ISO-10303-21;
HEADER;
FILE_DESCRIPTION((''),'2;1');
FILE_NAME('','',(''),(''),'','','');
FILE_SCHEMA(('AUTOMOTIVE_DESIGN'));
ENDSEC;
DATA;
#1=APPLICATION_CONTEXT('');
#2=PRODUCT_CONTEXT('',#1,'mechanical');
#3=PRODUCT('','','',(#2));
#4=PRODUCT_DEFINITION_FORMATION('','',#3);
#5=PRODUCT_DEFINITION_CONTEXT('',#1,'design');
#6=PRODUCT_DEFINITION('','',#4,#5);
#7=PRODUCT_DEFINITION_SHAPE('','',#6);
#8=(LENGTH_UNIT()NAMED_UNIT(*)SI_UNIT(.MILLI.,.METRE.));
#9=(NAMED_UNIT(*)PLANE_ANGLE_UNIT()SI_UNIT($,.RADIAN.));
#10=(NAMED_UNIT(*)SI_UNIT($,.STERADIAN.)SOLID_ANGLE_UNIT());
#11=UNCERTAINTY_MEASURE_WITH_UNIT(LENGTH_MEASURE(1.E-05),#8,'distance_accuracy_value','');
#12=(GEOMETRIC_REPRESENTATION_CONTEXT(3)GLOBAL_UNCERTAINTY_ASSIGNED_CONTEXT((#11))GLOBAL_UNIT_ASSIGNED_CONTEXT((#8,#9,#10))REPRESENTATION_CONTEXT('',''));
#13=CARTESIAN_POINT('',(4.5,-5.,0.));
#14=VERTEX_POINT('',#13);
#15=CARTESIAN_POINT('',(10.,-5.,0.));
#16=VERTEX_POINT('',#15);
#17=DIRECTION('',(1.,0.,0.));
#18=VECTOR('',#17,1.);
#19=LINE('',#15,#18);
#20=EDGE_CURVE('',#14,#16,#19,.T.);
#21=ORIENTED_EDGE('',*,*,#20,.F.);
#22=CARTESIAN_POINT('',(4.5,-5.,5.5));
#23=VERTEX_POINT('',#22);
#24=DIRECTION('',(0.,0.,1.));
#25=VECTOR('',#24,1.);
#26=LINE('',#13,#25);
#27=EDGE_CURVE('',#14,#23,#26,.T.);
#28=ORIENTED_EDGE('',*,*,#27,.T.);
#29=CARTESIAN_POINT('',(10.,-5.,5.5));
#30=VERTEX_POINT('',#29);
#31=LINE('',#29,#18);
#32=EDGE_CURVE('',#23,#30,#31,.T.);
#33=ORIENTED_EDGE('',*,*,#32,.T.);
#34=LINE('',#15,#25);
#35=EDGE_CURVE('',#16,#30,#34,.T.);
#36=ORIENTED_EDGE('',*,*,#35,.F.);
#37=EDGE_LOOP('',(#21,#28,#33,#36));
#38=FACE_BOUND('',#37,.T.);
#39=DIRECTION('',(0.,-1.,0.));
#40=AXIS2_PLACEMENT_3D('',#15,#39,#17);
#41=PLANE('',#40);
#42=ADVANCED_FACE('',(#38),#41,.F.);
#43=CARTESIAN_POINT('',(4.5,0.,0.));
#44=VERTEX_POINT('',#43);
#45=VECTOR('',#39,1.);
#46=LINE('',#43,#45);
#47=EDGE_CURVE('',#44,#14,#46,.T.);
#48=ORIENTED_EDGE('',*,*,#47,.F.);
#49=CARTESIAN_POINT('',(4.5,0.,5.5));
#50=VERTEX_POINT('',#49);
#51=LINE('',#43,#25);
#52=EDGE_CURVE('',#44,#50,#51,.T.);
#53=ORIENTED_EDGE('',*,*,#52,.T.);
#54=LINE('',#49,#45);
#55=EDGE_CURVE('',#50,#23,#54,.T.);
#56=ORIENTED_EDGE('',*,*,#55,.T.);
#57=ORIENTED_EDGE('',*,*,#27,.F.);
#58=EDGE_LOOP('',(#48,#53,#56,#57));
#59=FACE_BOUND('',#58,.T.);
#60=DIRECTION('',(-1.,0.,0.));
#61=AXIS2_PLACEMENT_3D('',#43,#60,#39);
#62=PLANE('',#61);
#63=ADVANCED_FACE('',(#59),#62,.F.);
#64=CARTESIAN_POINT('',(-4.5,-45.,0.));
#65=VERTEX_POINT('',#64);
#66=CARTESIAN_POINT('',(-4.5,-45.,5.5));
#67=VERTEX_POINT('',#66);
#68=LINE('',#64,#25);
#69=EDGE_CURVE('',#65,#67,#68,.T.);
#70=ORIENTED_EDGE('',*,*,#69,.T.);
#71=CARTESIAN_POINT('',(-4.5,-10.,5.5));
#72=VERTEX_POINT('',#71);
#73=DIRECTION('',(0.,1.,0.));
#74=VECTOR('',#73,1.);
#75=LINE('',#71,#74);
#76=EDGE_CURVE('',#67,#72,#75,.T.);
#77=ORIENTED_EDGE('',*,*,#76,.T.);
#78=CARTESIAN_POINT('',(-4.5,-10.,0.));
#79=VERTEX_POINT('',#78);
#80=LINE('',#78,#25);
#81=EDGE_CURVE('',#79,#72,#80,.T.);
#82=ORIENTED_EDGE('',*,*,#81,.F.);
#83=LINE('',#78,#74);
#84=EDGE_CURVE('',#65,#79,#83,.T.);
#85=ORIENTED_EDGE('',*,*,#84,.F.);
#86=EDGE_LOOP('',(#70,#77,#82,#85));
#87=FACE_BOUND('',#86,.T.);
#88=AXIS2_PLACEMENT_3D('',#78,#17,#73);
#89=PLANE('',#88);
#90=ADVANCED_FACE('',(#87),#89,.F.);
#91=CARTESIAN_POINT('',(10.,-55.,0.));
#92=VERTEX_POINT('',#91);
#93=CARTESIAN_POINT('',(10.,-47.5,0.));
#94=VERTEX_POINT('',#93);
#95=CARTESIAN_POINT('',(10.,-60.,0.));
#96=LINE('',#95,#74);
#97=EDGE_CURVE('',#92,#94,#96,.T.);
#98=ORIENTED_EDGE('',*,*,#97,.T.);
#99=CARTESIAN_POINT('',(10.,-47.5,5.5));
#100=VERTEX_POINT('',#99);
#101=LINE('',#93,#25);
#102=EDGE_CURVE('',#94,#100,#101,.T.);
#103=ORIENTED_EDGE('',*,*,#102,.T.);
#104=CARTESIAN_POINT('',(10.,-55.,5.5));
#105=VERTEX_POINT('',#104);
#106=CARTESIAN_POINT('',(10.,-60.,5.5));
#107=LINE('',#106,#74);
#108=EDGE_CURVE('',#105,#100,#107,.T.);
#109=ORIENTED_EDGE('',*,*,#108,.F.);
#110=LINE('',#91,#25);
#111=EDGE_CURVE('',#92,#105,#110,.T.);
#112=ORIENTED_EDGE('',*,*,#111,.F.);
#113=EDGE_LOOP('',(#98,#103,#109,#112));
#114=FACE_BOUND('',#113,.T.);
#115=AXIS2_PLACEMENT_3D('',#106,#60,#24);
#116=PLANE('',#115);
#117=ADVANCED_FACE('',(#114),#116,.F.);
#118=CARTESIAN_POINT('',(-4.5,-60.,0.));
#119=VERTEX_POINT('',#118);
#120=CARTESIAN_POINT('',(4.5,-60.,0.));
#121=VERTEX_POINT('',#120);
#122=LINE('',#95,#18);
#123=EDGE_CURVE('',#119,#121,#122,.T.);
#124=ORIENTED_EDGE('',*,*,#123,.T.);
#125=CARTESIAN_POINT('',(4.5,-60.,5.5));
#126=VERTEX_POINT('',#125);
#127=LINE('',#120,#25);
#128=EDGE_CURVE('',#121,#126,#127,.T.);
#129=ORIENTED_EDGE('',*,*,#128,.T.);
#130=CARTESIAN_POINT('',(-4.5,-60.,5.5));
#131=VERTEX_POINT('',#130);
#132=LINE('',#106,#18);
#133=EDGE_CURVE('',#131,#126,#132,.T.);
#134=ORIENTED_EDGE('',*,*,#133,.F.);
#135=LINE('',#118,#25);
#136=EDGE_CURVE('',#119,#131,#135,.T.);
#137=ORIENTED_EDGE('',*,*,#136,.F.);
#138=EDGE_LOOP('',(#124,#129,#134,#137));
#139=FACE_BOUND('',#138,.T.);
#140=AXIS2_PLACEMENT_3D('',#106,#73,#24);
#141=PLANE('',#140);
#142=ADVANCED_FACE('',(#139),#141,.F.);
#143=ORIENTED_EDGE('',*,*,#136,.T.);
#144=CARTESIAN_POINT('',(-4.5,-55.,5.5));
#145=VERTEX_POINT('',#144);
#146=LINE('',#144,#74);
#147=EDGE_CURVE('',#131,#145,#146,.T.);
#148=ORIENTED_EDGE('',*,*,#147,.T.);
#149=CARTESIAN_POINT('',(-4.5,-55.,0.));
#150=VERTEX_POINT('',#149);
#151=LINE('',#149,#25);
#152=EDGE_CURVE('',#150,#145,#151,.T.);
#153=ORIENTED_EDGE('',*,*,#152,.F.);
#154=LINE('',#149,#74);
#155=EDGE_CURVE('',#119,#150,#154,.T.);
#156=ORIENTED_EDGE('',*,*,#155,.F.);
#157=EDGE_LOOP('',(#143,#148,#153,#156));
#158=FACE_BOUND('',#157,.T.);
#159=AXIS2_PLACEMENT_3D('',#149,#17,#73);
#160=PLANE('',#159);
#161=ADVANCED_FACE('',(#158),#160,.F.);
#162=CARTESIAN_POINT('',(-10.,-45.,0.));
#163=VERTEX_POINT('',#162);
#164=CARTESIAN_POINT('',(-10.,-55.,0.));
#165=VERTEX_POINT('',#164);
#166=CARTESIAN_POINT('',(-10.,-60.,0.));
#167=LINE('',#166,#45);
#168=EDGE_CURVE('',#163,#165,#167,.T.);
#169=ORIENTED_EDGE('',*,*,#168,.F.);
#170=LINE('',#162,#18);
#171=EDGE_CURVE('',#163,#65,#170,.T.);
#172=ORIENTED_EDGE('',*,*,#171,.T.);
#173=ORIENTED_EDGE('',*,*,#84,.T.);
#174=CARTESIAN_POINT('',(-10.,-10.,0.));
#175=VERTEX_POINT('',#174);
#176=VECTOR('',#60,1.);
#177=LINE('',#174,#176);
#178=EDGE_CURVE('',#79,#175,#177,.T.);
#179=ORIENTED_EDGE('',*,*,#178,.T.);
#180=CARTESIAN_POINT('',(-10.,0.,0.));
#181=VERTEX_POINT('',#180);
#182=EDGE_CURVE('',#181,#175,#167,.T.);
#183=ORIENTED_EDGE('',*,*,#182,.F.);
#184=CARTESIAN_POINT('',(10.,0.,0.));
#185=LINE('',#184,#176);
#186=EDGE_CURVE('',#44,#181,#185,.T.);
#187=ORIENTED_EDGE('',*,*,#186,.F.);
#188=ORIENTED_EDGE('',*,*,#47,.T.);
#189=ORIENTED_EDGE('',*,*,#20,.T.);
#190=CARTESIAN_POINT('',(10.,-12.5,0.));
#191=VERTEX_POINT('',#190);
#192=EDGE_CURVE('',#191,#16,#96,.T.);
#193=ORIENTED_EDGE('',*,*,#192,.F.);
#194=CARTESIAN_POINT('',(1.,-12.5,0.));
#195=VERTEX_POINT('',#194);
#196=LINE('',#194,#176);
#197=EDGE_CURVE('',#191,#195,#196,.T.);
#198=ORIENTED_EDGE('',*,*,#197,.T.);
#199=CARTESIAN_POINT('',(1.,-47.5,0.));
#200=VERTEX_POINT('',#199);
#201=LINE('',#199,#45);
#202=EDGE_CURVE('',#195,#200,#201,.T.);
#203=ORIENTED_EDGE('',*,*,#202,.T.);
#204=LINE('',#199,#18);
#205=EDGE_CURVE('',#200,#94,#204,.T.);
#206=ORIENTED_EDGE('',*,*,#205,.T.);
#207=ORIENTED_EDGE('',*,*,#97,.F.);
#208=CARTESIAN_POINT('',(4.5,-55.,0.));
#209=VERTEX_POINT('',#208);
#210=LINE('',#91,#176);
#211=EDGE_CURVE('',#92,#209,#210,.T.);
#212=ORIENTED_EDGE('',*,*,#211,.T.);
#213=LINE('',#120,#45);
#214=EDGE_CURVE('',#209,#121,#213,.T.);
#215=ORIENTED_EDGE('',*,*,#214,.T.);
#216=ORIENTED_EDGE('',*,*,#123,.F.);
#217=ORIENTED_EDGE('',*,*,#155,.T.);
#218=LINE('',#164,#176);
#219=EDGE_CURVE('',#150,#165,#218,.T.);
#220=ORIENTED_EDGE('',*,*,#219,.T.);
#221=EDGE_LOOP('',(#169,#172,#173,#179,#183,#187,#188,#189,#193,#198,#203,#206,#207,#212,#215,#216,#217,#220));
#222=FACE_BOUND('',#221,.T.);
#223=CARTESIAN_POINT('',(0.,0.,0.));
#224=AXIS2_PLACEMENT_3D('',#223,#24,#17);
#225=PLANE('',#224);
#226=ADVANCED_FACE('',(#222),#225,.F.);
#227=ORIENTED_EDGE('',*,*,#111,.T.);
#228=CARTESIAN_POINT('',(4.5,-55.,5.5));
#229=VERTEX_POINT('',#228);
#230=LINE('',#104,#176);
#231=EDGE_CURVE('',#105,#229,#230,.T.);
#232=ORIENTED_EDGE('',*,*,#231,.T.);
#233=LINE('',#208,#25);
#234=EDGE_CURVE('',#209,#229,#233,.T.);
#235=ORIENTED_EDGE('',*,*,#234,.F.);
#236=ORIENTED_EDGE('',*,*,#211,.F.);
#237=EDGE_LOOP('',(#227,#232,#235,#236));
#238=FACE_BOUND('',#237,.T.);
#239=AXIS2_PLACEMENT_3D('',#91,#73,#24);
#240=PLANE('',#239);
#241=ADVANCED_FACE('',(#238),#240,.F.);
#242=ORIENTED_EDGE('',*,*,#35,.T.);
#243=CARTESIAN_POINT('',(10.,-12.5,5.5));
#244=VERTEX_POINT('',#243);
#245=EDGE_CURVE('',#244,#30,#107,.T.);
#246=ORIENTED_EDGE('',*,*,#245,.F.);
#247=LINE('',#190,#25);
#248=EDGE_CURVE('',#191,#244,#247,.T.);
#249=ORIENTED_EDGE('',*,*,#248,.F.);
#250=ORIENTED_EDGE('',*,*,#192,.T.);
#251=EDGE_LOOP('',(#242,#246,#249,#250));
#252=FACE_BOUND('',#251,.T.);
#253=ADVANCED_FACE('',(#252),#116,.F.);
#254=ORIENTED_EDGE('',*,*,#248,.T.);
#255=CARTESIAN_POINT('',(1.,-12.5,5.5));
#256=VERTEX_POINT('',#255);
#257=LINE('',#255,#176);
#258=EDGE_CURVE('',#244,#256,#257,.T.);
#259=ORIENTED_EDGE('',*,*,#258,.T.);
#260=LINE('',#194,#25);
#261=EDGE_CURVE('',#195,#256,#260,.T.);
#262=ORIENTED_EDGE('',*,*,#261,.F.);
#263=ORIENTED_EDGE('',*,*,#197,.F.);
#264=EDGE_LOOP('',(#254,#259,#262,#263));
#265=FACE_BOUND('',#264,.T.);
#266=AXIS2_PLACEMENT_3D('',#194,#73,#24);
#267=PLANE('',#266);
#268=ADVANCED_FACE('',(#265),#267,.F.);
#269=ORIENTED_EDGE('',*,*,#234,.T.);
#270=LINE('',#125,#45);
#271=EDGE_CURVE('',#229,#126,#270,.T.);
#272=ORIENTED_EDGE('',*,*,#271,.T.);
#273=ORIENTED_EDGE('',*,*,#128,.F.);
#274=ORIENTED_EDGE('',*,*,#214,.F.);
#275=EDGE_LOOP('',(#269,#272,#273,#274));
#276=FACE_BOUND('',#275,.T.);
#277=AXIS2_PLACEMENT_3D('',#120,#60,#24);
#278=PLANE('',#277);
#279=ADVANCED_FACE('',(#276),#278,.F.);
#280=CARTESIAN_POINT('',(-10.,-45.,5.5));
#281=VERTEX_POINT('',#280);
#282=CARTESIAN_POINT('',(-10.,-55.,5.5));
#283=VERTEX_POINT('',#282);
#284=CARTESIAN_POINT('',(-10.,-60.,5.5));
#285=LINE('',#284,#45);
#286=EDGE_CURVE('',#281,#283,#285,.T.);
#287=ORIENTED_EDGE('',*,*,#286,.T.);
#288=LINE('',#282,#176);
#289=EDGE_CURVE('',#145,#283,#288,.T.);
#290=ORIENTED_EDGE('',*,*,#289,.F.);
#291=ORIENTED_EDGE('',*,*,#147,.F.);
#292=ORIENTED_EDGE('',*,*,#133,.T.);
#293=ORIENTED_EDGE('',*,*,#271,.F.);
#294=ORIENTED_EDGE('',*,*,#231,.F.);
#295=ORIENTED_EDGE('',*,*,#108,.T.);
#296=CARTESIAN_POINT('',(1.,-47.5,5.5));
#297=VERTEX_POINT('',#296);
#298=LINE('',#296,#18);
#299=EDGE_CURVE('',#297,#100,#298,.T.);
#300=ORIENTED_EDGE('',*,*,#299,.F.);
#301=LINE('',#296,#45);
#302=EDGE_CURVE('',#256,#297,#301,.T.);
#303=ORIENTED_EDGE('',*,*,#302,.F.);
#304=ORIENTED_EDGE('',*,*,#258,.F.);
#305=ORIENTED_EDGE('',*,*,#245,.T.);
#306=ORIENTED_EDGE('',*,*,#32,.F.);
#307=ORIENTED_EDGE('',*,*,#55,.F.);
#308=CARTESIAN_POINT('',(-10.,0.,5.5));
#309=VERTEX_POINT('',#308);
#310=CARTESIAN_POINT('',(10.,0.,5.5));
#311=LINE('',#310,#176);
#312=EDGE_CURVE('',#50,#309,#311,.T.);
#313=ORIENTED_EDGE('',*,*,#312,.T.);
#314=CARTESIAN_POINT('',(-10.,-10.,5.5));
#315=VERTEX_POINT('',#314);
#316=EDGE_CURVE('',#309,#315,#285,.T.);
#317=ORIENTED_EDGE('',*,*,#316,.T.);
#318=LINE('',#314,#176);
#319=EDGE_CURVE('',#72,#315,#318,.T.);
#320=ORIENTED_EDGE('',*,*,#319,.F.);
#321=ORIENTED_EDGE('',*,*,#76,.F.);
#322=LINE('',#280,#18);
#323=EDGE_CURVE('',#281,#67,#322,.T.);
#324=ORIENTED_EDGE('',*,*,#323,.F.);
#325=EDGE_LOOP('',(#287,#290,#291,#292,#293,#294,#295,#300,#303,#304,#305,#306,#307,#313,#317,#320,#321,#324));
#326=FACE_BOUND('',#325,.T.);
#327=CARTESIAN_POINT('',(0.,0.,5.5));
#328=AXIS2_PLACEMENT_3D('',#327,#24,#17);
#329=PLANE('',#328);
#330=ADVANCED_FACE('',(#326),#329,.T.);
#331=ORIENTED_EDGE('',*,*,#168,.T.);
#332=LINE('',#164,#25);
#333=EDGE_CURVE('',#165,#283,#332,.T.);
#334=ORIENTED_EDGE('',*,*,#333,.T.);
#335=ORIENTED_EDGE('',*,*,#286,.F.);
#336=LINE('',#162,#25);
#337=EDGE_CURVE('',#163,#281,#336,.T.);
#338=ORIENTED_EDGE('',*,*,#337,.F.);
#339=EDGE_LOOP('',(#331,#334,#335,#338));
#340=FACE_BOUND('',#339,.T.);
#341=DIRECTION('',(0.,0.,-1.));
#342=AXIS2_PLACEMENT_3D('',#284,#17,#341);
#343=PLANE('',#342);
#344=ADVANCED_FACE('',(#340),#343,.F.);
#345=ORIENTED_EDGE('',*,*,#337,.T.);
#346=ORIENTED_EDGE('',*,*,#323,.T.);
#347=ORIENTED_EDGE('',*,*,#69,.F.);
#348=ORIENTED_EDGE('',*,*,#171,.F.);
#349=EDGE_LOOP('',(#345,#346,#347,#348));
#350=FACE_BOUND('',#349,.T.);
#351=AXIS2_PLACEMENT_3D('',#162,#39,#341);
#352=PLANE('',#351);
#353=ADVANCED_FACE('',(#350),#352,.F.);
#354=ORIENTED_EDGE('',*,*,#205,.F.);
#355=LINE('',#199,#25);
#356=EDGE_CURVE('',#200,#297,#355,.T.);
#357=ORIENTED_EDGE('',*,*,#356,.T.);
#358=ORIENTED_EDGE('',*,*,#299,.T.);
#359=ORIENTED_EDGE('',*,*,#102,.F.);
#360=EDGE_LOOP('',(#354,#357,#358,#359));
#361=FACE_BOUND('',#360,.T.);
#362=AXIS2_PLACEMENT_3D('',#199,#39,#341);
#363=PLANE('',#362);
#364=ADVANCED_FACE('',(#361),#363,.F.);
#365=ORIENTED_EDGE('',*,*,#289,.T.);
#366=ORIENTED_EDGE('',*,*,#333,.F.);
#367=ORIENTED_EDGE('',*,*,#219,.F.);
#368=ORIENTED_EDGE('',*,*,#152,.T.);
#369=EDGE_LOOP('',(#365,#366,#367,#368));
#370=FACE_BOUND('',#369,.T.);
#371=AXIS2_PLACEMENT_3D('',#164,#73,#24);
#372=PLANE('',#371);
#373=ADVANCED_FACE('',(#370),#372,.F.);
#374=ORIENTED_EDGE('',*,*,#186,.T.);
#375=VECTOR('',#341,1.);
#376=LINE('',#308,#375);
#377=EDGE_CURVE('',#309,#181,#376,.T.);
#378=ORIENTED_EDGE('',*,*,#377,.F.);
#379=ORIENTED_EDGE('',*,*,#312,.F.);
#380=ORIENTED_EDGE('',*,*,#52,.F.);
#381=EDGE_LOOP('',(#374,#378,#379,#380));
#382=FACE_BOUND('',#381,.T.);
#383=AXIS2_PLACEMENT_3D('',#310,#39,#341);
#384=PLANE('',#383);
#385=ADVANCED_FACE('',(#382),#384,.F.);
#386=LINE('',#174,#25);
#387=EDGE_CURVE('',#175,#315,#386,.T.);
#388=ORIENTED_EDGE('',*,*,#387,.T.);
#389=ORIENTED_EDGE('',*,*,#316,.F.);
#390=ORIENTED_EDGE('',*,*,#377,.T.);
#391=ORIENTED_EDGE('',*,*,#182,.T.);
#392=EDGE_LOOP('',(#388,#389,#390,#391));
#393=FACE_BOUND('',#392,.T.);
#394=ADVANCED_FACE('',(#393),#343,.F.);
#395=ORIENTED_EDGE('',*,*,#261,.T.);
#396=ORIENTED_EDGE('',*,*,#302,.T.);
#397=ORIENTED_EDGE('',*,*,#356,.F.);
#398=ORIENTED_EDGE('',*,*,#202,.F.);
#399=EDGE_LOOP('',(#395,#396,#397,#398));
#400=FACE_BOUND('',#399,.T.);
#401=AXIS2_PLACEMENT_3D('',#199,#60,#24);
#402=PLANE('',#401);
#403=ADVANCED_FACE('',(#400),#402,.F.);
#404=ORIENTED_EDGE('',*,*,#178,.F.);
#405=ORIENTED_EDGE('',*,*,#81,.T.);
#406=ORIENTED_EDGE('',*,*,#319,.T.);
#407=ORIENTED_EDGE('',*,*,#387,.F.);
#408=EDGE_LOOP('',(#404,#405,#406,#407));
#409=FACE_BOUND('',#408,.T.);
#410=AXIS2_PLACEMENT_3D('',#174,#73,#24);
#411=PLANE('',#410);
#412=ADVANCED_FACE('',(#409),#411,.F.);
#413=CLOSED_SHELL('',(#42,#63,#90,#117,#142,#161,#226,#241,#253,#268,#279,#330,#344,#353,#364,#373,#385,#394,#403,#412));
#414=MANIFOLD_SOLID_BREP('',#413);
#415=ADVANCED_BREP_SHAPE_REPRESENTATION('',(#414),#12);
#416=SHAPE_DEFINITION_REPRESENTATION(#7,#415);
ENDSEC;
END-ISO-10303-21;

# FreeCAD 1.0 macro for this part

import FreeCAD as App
import Part
import Sketcher
from FreeCAD import Vector
Q = App.Units.Quantity


def add_polygon(sketch, points):
    """Adds a closed chain of lines whose ends are joined by coincident constraints."""
    first, n = sketch.GeometryCount, len(points)
    for a, b in zip(points, points[1:] + points[:1]):
        sketch.addGeometry(Part.LineSegment(App.Vector(*a, 0), App.Vector(*b, 0)), False)
    for i in range(n):
        sketch.addConstraint(Sketcher.Constraint("Coincident", first + i, 2, first + (i + 1) % n, 1))

doc = App.newDocument("Part")
params = doc.addObject("Spreadsheet::Sheet", "Params")
for row, (alias, value) in enumerate([
    ("sketch1_width", "20 mm"),
    ("sketch1_height", "60 mm"),
    ("pad1_length", "5.5 mm"),
    ("sketch2_width", "9 mm"),
    ("sketch2_height", "35 mm"),
    ("sketch2_height2", "5 mm"),
    ("sketch2_width2", "5.5 mm"),
], start=1):
    params.set(f"A{row}", alias)
    params.set(f"B{row}", "=" + value)
    params.setAlias(f"B{row}", alias)

body = doc.addObject("PartDesign::Body", "Body")

sketch1 = body.newObject("Sketcher::SketchObject", "Sketch")
sketch1.AttachmentSupport = (doc.getObject("XY_Plane"), [""])
sketch1.MapMode = "FlatFace"
add_polygon(sketch1, [(-10, 0), (-10, -60), (10, -60), (10, 0)])
sketch1.addConstraint([
    Sketcher.Constraint("Vertical", 0),
    Sketcher.Constraint("Horizontal", 1),
    Sketcher.Constraint("Vertical", 2),
    Sketcher.Constraint("Horizontal", 3),
    Sketcher.Constraint("Symmetric", 2, 2, 3, 2, -1, 1),
    Sketcher.Constraint("DistanceX", 1, 1, 1, 2, Q("20 mm")),
    Sketcher.Constraint("DistanceY", 0, 2, 0, 1, Q("60 mm")),
])
sketch1.setExpression("Constraints[9]", "Params.sketch1_width")
sketch1.setExpression("Constraints[10]", "Params.sketch1_height")
pad1 = body.newObject("PartDesign::Pad", "Pad")
pad1.Profile = sketch1
pad1.setExpression("Length", "Params.pad1_length")

sketch2 = body.newObject("Sketcher::SketchObject", "Sketch001")
sketch2.AttachmentSupport = (doc.getObject("XY_Plane"), [""])
sketch2.MapMode = "FlatFace"
sketch2.AttachmentOffset = App.Placement(Vector(0, 0, 5.5), App.Rotation())
add_polygon(sketch2, [(-10, -10), (-10, -45), (-4, -45), (-4, -10)])
add_polygon(sketch2, [(-10, -55), (-10, -60), (-4, -60), (-4, -55)])
add_polygon(sketch2, [(1, -12), (1, -48), (10, -48), (10, -12)])
add_polygon(sketch2, [(4, -55), (4, -60), (10, -60), (10, -55)])
add_polygon(sketch2, [(4, 0), (4, -5), (10, -5), (10, 0)])
sketch2.addConstraint([
    Sketcher.Constraint("Vertical", 0),
    Sketcher.Constraint("Horizontal", 1),
    Sketcher.Constraint("Vertical", 2),
    Sketcher.Constraint("Horizontal", 3),
    Sketcher.Constraint("Vertical", 4),
    Sketcher.Constraint("Horizontal", 5),
    Sketcher.Constraint("Vertical", 6),
    Sketcher.Constraint("Horizontal", 7),
    Sketcher.Constraint("Vertical", 8),
    Sketcher.Constraint("Horizontal", 9),
    Sketcher.Constraint("Vertical", 10),
    Sketcher.Constraint("Horizontal", 11),
    Sketcher.Constraint("Vertical", 12),
    Sketcher.Constraint("Horizontal", 13),
    Sketcher.Constraint("Vertical", 14),
    Sketcher.Constraint("Horizontal", 15),
    Sketcher.Constraint("Vertical", 16),
    Sketcher.Constraint("Horizontal", 17),
    Sketcher.Constraint("Vertical", 18),
    Sketcher.Constraint("Horizontal", 19),
    Sketcher.Constraint("Symmetric", 5, 2, 12, 2, -2),
    Sketcher.Constraint("Symmetric", 7, 2, 14, 2, -2),
    Sketcher.Constraint("PointOnObject", 18, 2, -1),
    Sketcher.Constraint("Vertical", 3, 2, 4, 2),
    Sketcher.Constraint("Vertical", 2, 2, 5, 2),
    Sketcher.Constraint("Vertical", 10, 2, 13, 2),
    Sketcher.Constraint("Vertical", 15, 2, 16, 2),
    Sketcher.Constraint("Vertical", 14, 2, 17, 2),
    Sketcher.Constraint("Equal", 2, 8),
    Sketcher.Constraint("Equal", 14, 16),
    Sketcher.Constraint("DistanceX", 9, 1, 9, 2, Q("9 mm")),
    Sketcher.Constraint("DistanceY", 0, 2, 0, 1, Q("35 mm")),
    Sketcher.Constraint("DistanceY", 4, 2, 4, 1, Q("5 mm")),
    Sketcher.Constraint("DistanceX", 1, 1, 1, 2, Q("5.5 mm")),
    Sketcher.Constraint("DistanceX", 0, 2, -1, 1, Q("10 mm")),
    Sketcher.Constraint("DistanceY", 0, 2, -1, 1, Q("45 mm")),
    Sketcher.Constraint("DistanceY", 4, 2, -1, 1, Q("60 mm")),
    Sketcher.Constraint("DistanceY", 8, 2, -1, 1, Q("47.5 mm")),
])
sketch2.setExpression("Constraints[50]", "Params.sketch2_width")
sketch2.setExpression("Constraints[51]", "Params.sketch2_height")
sketch2.setExpression("Constraints[52]", "Params.sketch2_height2")
sketch2.setExpression("Constraints[53]", "Params.sketch2_width2")
pocket1 = body.newObject("PartDesign::Pocket", "Pocket")
pocket1.Profile = sketch2
pocket1.Type = "ThroughAll"

doc.recompute()
